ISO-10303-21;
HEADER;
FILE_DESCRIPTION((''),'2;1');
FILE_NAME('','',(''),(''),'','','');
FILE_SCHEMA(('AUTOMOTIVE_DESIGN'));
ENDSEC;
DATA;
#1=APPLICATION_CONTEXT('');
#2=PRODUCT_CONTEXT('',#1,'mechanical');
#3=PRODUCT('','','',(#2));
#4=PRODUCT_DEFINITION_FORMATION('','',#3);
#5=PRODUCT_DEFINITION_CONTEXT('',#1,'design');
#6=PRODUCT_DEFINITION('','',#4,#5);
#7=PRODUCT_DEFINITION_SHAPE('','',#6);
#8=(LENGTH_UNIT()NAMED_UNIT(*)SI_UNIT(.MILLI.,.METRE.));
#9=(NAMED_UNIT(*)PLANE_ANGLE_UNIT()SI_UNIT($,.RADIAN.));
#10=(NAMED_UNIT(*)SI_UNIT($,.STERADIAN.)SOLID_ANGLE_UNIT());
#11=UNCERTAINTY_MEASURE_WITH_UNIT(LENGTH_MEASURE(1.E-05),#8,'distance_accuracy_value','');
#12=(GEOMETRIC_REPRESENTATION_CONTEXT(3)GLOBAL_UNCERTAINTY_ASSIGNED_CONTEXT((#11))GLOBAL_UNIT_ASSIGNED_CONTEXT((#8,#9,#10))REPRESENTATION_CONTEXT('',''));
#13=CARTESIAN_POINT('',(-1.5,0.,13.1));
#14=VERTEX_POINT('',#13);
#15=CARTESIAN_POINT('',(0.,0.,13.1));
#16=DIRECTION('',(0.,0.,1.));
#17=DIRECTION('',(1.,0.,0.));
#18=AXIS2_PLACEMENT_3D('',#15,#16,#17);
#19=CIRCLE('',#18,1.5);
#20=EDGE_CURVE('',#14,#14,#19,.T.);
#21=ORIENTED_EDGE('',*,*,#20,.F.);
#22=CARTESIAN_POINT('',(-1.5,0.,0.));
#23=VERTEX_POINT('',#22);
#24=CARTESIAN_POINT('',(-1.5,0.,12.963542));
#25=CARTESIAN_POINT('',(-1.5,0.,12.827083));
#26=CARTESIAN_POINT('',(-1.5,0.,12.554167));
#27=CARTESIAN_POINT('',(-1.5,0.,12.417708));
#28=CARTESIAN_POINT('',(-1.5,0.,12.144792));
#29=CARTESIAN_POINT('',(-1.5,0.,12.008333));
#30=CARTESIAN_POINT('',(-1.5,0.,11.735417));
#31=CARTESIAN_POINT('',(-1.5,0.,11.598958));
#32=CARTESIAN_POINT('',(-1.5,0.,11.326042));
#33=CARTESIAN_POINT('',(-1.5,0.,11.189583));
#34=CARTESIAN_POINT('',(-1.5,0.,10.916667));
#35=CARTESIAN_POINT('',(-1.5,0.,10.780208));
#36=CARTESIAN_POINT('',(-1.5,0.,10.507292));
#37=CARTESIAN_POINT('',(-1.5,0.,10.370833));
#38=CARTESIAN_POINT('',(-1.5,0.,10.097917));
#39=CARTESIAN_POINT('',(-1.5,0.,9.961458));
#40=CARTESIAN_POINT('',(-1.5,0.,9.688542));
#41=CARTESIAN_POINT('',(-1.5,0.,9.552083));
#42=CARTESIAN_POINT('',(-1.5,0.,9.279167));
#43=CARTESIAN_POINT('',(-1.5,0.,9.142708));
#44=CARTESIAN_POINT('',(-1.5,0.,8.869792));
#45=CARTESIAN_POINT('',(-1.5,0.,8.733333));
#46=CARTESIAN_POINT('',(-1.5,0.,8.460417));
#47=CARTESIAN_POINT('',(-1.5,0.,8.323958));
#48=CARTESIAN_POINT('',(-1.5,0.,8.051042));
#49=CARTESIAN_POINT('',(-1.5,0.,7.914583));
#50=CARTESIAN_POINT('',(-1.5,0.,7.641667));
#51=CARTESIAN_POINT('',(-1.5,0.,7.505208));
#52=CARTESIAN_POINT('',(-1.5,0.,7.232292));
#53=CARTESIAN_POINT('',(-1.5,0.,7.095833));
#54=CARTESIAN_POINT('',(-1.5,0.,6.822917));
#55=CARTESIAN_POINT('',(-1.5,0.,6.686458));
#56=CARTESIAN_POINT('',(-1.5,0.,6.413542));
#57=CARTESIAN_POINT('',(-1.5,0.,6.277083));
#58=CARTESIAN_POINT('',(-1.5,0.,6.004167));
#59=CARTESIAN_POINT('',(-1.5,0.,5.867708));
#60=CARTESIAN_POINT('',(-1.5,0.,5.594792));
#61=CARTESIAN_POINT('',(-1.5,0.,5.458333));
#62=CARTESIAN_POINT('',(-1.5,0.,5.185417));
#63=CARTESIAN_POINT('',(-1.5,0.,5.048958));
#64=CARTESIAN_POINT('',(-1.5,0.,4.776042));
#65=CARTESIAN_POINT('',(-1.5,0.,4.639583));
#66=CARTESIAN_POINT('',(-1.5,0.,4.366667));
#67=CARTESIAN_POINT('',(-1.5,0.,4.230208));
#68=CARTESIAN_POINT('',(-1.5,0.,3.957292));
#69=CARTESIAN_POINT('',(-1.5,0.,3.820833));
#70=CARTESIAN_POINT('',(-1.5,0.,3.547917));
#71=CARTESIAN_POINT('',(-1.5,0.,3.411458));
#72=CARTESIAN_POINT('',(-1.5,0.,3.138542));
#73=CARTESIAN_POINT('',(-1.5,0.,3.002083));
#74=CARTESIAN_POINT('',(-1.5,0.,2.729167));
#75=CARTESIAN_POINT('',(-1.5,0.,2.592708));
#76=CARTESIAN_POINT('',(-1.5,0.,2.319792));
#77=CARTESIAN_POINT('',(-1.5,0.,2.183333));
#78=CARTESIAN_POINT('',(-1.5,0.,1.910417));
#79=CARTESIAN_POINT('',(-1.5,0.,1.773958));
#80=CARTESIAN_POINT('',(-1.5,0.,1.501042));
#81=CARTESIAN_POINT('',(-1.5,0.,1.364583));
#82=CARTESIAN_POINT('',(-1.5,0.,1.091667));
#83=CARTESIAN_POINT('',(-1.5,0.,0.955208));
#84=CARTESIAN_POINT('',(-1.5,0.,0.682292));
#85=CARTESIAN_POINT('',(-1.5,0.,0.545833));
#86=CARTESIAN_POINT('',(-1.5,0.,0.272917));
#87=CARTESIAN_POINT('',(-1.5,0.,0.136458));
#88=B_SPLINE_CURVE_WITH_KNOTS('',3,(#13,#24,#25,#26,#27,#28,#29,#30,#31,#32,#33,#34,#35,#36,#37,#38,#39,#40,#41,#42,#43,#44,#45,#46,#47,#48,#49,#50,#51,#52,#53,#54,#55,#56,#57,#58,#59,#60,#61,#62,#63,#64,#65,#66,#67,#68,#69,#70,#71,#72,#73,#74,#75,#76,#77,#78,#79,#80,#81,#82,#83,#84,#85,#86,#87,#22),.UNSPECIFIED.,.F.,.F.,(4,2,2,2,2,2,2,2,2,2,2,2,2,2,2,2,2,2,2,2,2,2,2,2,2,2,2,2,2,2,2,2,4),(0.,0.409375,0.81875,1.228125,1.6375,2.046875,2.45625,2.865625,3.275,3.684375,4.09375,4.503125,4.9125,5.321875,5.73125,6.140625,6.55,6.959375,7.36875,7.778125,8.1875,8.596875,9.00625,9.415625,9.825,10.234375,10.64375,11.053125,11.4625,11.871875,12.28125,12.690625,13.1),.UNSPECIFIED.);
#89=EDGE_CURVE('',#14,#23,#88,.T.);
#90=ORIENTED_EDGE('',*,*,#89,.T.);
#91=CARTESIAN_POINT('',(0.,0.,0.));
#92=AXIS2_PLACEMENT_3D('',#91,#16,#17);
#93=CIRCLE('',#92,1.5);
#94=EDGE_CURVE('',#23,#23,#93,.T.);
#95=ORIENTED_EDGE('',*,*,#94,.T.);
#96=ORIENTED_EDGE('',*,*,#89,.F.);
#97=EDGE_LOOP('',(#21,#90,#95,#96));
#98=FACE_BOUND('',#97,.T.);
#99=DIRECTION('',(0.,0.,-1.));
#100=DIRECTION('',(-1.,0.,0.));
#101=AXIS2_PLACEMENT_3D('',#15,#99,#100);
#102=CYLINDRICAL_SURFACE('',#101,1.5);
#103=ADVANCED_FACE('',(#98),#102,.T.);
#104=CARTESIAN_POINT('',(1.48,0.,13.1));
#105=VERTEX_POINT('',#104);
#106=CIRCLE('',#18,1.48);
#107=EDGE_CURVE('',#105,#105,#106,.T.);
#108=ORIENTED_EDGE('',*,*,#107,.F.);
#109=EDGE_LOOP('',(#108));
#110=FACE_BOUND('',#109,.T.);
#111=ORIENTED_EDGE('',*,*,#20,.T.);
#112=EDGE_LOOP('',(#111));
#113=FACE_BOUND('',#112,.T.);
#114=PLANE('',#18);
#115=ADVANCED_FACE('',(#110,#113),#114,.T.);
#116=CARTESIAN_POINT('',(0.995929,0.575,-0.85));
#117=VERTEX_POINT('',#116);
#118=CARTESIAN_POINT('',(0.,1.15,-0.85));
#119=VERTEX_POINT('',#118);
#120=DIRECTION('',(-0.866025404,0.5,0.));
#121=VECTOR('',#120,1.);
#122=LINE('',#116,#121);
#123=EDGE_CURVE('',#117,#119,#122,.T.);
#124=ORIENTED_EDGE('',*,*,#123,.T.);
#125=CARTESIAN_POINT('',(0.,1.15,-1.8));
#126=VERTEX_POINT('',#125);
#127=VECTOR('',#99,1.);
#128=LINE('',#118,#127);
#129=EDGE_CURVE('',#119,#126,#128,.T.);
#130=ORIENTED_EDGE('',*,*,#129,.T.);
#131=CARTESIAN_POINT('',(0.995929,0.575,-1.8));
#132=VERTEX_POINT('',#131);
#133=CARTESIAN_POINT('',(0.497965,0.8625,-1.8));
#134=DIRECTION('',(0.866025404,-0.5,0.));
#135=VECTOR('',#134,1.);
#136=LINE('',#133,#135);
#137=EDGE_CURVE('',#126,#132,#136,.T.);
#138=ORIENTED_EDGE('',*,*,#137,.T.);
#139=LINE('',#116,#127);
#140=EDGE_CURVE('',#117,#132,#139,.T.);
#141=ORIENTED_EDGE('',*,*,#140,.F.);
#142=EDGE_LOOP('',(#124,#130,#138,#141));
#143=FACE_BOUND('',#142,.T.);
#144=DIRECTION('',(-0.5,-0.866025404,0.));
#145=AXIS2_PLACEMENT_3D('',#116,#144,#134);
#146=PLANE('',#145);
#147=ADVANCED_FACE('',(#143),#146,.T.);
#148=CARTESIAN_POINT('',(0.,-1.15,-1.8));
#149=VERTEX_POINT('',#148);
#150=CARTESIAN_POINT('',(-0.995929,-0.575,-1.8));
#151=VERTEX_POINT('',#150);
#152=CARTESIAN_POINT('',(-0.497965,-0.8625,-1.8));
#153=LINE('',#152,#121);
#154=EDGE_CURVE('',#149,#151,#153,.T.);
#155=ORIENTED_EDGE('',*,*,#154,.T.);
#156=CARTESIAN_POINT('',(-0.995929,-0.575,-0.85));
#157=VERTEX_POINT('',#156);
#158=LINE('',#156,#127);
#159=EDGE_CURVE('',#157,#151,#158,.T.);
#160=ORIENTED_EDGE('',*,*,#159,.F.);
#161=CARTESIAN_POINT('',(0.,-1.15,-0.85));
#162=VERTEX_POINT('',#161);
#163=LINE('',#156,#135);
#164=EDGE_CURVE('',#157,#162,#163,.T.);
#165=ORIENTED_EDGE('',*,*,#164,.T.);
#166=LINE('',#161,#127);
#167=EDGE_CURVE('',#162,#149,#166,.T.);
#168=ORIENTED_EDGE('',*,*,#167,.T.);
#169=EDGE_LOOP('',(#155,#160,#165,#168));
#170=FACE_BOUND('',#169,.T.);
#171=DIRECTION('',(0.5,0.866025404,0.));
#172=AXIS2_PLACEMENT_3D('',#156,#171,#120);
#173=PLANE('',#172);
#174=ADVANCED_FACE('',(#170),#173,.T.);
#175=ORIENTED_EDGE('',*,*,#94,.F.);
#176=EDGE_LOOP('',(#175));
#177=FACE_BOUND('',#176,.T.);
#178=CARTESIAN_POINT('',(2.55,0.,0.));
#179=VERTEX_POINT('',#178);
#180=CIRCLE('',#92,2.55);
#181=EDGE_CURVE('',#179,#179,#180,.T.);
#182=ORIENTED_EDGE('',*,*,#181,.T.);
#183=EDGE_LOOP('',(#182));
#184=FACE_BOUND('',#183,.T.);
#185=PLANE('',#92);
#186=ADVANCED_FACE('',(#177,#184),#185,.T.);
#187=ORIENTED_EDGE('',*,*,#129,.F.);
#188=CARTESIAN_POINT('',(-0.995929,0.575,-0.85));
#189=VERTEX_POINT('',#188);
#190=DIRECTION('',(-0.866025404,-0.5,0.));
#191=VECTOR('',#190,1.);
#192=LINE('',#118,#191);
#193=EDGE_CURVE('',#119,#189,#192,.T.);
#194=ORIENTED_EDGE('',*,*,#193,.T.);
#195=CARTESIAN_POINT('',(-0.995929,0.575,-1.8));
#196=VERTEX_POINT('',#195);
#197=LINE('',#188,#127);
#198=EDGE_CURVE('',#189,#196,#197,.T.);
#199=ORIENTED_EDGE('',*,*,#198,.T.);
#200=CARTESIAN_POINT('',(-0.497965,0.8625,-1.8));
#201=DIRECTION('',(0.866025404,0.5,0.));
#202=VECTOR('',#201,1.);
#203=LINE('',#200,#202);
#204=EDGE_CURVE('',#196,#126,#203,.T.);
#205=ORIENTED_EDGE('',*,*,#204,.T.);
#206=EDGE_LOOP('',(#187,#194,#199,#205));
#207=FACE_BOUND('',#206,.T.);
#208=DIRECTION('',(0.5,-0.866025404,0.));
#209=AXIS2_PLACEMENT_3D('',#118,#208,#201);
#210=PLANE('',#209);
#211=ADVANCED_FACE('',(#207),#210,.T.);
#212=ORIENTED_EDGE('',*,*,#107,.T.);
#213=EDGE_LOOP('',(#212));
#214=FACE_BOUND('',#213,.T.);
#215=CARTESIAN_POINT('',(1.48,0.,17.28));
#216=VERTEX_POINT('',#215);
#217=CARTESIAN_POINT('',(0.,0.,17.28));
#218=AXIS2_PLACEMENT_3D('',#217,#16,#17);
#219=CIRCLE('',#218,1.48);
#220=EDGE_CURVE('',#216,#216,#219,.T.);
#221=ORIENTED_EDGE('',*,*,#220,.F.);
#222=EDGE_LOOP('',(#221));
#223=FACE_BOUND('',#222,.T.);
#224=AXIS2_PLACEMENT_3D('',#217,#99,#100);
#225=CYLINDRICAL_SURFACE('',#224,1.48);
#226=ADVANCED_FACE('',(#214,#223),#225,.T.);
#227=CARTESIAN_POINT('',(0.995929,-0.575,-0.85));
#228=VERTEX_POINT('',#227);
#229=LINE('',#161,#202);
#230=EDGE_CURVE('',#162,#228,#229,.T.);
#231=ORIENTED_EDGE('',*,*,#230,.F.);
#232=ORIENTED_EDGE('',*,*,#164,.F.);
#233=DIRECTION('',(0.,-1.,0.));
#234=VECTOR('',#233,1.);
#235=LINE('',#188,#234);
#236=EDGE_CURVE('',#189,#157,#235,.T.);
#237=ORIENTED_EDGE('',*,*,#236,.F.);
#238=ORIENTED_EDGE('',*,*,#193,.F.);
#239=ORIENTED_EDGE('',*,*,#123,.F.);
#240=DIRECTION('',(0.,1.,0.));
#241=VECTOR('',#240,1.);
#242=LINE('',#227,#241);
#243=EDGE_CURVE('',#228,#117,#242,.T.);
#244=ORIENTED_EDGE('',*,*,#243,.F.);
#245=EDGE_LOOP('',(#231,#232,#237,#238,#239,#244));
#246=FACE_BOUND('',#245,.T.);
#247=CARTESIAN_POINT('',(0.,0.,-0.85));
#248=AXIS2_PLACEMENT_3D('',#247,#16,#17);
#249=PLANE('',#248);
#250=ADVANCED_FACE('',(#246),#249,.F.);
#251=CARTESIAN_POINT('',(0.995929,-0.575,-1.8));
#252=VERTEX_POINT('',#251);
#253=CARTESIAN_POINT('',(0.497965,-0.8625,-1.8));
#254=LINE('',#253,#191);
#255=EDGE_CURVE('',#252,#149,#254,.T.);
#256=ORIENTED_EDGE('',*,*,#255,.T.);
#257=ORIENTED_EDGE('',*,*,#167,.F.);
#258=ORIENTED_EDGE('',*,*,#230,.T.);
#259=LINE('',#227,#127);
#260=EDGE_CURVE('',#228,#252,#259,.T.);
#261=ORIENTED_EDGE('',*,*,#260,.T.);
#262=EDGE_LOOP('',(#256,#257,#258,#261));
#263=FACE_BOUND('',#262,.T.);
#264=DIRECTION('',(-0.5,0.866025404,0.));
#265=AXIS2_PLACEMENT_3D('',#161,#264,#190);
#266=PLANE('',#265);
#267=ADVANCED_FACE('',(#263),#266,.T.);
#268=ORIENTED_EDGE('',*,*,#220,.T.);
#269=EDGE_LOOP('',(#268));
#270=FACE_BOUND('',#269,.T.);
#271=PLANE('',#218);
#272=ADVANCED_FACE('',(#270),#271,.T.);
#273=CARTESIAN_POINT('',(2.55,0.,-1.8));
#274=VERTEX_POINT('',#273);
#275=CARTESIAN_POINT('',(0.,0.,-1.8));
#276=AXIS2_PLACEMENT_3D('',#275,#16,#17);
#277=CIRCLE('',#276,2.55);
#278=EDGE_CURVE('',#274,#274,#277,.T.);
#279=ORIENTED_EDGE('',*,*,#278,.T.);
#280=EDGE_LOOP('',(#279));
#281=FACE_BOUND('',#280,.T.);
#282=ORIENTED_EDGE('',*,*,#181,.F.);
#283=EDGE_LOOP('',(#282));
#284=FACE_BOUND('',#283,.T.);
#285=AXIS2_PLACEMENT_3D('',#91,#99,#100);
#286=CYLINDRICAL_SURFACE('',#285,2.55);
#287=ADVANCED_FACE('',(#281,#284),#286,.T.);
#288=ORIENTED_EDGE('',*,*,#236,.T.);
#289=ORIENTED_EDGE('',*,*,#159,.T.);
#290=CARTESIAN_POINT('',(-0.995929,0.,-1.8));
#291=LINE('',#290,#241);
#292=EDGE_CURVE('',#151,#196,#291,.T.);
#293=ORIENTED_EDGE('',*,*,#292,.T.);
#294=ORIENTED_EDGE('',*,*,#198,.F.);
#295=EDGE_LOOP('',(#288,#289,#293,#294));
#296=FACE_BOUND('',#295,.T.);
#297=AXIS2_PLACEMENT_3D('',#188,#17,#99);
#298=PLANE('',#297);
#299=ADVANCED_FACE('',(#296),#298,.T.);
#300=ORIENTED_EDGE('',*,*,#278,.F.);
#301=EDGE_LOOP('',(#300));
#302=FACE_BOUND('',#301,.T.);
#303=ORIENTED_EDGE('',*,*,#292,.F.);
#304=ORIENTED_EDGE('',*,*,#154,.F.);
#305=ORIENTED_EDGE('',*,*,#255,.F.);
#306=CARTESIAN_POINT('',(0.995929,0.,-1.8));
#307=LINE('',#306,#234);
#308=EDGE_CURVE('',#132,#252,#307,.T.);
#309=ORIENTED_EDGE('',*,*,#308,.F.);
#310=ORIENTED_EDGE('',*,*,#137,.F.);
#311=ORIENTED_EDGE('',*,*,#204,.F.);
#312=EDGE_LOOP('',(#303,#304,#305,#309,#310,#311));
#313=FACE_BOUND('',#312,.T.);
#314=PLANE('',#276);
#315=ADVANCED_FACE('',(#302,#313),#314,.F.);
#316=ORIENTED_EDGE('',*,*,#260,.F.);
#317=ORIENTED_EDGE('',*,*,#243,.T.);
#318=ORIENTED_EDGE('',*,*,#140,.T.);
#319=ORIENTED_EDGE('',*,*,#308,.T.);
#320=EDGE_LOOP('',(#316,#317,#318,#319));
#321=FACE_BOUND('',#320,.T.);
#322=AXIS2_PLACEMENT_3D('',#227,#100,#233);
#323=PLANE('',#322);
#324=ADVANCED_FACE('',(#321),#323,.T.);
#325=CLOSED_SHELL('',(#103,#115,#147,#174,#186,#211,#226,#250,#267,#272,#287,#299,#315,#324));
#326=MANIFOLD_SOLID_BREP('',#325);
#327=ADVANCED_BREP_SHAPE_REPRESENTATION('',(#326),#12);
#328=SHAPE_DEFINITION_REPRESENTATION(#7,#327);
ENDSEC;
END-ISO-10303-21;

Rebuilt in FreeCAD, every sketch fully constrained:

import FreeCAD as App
import Part
import Sketcher
Q = App.Units.Quantity

doc = App.newDocument("Part")
body = doc.addObject("PartDesign::Body", "Body")

# Sketch on XY plane
sketch1 = doc.addObject("Sketcher::SketchObject", "Sketch")
body.addObject(sketch1)
sketch1.AttachmentSupport = (doc.XY_Plane, [""])
sketch1.MapMode = "FlatFace"
sketch1.AttachmentOffset = App.Placement(App.Vector(0, 0, -1.8), App.Rotation())
sketch1.addGeometry(Part.Circle(App.Vector(0, 0, 0), App.Vector(0, 0, 1), 2.5), False)
sketch1.addConstraint([
    Sketcher.Constraint("Coincident", 0, 3, -1, 1),
    Sketcher.Constraint("Diameter", 0, 5.1),
])
pad1 = doc.addObject("PartDesign::Pad", "Pad")
body.addObject(pad1)
pad1.Profile = sketch1
pad1.Length = 1.8

# Sketch on XY plane
sketch2 = doc.addObject("Sketcher::SketchObject", "Sketch001")
body.addObject(sketch2)
sketch2.AttachmentSupport = (doc.XY_Plane, [""])
sketch2.MapMode = "FlatFace"
sketch2.addGeometry(Part.Circle(App.Vector(0, 0, 0), App.Vector(0, 0, 1), 1.5), False)
sketch2.addConstraint([
    Sketcher.Constraint("Coincident", 0, 3, -1, 1),
    Sketcher.Constraint("Diameter", 0, 3.0),
])
pad2 = doc.addObject("PartDesign::Pad", "Pad001")
body.addObject(pad2)
pad2.Profile = sketch2
pad2.Length = 13.1

# Sketch on XY plane
sketch3 = doc.addObject("Sketcher::SketchObject", "Sketch002")
body.addObject(sketch3)
sketch3.AttachmentSupport = (doc.XY_Plane, [""])
sketch3.MapMode = "FlatFace"
sketch3.AttachmentOffset = App.Placement(App.Vector(0, 0, 13.1), App.Rotation())
sketch3.addGeometry(Part.Circle(App.Vector(0, 0, 0), App.Vector(0, 0, 1), 1.5), False)
sketch3.addConstraint([
    Sketcher.Constraint("Coincident", 0, 3, -1, 1),
    Sketcher.Constraint("Diameter", 0, 2.96),
])
pad3 = doc.addObject("PartDesign::Pad", "Pad002")
body.addObject(pad3)
pad3.Profile = sketch3
pad3.Length = 4.18

# Sketch on XY plane
sketch4 = doc.addObject("Sketcher::SketchObject", "Sketch003")
body.addObject(sketch4)
sketch4.AttachmentSupport = (doc.XY_Plane, [""])
sketch4.MapMode = "FlatFace"
sketch4.AttachmentOffset = App.Placement(App.Vector(0, 0, -1.9), App.Rotation())
sketch4.addGeometry([
    Part.LineSegment(App.Vector(1, 0.6, 0), App.Vector(0, 1.1, 0)),  # 0
    Part.LineSegment(App.Vector(0, 1.1, 0), App.Vector(-1, 0.6, 0)),  # 1
    Part.LineSegment(App.Vector(-1, 0.6, 0), App.Vector(-1, -0.6, 0)),  # 2
    Part.LineSegment(App.Vector(-1, -0.6, 0), App.Vector(0, -1.1, 0)),  # 3
    Part.LineSegment(App.Vector(0, -1.1, 0), App.Vector(1, -0.6, 0)),  # 4
    Part.LineSegment(App.Vector(1, -0.6, 0), App.Vector(1, 0.6, 0)),  # 5
], False)
sketch4.addConstraint([
    Sketcher.Constraint("Coincident", 0, 2, 1, 1),
    Sketcher.Constraint("Coincident", 1, 2, 2, 1),
    Sketcher.Constraint("Coincident", 2, 2, 3, 1),
    Sketcher.Constraint("Coincident", 3, 2, 4, 1),
    Sketcher.Constraint("Coincident", 4, 2, 5, 1),
    Sketcher.Constraint("Coincident", 5, 2, 0, 1),
    Sketcher.Constraint("Vertical", 2),
    Sketcher.Constraint("Vertical", 5),
    Sketcher.Constraint("Symmetric", 0, 2, 3, 2, -1, 1),
    Sketcher.Constraint("Symmetric", 1, 2, 4, 2, -1, 1),
    Sketcher.Constraint("PointOnObject", 0, 2, -2),
    Sketcher.Constraint("Parallel", 0, 3),
    Sketcher.Constraint("Horizontal", 2, 2, 4, 2),
    Sketcher.Constraint("Angle", 0, Q("150 deg")),
    Sketcher.Constraint("DistanceY", 2, 2, 2, 1, 1.15),
    Sketcher.Constraint("DistanceY", 3, 2, 0, 2, 2.3),
])
pocket1 = doc.addObject("PartDesign::Pocket", "Pocket")
body.addObject(pocket1)
pocket1.Profile = sketch4
pocket1.Length = 1.05
pocket1.Reversed = True

doc.recompute()
